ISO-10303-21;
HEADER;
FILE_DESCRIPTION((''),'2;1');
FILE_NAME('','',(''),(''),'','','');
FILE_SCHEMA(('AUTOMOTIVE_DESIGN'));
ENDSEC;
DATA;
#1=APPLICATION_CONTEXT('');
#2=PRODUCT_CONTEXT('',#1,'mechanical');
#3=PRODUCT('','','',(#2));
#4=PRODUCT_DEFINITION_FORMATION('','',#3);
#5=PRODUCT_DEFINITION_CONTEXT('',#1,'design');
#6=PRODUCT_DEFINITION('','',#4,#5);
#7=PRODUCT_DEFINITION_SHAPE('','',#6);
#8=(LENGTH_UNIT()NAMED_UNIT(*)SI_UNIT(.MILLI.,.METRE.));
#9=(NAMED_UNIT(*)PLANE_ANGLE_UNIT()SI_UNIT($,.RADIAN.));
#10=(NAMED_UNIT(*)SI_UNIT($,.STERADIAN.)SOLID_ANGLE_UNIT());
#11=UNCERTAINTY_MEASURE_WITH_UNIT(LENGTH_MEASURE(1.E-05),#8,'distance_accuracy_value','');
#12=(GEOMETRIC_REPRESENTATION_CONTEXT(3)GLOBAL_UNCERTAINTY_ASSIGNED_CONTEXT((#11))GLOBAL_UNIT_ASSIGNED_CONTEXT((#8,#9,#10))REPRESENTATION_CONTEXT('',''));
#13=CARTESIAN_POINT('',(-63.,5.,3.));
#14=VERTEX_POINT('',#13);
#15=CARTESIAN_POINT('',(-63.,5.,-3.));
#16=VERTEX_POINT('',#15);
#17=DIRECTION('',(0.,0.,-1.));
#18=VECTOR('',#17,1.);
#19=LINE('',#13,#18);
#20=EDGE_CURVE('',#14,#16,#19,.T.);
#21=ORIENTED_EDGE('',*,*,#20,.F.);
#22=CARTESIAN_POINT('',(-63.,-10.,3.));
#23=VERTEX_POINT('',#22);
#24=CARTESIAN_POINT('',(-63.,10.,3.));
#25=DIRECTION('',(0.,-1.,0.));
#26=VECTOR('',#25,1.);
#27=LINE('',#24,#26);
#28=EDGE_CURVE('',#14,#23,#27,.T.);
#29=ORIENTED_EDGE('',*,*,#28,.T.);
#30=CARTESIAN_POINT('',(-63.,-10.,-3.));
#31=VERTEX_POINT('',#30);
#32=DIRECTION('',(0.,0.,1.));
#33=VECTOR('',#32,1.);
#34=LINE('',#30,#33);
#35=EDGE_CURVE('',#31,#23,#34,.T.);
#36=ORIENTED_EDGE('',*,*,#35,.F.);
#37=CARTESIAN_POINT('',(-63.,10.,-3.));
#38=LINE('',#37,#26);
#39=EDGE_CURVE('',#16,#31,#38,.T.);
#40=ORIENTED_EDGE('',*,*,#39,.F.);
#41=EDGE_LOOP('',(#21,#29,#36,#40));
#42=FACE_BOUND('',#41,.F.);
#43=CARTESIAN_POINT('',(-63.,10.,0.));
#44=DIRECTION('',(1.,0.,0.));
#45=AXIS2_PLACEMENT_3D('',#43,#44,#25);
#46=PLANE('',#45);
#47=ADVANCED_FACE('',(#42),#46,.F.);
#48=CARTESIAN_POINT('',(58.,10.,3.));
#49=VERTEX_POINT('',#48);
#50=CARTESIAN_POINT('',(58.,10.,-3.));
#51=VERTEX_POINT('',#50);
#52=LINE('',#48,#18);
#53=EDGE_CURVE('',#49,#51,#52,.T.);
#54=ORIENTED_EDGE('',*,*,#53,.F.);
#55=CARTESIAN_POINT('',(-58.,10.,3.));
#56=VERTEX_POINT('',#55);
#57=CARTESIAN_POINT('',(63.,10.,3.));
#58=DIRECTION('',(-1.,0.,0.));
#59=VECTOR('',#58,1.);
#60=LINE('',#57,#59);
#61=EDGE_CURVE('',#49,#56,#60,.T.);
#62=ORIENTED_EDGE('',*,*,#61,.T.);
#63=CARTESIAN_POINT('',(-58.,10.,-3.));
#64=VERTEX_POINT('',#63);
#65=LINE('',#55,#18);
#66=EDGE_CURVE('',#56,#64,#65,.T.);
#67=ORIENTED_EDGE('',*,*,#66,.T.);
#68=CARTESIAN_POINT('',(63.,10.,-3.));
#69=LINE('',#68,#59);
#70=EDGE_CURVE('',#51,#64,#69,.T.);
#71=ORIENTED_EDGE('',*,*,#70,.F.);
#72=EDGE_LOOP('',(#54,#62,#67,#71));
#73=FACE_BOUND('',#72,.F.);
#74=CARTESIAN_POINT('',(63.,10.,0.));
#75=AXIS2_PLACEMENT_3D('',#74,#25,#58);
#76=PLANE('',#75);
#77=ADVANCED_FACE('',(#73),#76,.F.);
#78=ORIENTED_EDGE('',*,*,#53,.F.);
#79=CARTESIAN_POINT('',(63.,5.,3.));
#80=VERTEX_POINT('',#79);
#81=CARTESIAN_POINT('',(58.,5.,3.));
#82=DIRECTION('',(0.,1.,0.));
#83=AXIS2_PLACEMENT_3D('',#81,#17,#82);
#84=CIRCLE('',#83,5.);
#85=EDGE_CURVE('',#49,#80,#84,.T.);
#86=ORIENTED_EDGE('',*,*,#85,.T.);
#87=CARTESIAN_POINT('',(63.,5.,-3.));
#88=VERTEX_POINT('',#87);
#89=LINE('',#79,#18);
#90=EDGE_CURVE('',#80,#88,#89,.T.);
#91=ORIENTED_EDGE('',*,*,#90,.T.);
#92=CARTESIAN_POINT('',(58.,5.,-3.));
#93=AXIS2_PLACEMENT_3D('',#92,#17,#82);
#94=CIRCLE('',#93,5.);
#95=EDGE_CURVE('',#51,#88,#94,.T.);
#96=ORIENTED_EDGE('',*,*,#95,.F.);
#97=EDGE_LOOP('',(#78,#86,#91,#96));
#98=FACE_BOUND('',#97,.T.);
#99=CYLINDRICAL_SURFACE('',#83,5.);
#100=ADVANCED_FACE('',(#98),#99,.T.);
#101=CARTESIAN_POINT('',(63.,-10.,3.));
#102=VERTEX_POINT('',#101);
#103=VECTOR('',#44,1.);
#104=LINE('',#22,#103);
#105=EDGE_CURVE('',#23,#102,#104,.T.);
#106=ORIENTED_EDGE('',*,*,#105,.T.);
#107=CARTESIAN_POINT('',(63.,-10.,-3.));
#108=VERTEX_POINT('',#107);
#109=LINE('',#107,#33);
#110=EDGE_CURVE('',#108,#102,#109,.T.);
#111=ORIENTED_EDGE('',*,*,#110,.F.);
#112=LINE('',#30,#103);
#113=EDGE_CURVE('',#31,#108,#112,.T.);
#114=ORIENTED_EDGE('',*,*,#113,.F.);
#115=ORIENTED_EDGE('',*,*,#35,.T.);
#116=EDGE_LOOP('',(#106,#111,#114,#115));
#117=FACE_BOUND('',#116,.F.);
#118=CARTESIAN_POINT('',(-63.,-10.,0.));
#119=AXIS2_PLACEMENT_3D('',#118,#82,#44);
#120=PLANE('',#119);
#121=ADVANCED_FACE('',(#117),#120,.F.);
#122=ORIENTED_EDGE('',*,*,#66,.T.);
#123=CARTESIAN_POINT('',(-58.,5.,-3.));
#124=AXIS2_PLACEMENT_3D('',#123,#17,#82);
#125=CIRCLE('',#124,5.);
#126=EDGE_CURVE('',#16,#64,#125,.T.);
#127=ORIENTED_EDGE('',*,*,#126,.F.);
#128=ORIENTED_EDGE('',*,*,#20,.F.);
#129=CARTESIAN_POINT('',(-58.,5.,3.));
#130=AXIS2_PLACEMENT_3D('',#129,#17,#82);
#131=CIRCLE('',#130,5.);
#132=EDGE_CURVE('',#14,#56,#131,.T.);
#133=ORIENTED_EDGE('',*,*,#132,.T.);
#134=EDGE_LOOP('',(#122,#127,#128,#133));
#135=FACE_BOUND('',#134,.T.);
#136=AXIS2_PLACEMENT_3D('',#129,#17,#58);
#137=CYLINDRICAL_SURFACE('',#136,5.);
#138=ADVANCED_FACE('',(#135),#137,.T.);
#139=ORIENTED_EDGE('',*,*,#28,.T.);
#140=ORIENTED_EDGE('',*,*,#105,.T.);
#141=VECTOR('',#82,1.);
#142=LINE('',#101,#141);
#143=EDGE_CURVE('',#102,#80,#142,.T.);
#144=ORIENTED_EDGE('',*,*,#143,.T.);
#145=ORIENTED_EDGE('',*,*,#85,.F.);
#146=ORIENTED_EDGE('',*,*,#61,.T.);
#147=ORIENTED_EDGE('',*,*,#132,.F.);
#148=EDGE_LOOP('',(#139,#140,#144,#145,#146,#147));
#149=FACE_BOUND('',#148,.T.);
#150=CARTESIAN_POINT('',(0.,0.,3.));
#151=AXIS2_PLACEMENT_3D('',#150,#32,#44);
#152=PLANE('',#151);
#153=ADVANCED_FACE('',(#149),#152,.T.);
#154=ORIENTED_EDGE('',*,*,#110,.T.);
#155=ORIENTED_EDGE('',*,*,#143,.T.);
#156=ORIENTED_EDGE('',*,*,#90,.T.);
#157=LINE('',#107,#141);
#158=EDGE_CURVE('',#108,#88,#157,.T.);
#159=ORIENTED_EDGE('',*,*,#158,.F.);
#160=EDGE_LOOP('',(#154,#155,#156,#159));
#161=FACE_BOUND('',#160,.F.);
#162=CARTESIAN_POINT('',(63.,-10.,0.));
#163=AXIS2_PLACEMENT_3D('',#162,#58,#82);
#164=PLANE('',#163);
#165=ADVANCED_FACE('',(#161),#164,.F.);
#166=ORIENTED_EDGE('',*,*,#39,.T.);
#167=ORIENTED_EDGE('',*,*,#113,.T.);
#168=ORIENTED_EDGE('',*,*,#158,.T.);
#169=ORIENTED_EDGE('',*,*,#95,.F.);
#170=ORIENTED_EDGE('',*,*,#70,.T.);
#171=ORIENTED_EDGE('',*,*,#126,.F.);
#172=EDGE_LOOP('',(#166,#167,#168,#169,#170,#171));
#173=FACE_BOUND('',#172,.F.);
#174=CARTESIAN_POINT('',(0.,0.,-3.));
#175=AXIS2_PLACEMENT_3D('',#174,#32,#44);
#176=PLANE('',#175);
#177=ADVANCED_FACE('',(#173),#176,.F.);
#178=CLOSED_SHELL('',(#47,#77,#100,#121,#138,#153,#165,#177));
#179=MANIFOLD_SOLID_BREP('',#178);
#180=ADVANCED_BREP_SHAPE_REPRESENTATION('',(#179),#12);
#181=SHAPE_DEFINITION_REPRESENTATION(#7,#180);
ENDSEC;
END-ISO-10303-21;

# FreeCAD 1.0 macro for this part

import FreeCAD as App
import Part
import Sketcher
Q = App.Units.Quantity


def edges_at(feature, points):
    """Names of the edges that pass closest to the given points."""
    edges = feature.Shape.Edges
    near = lambda p: min(range(len(edges)), key=lambda i: edges[i].distToShape(Part.Vertex(*p))[0])
    return sorted({f"Edge{near(p) + 1}" for p in points})

doc = App.newDocument("Part")
body = doc.addObject("PartDesign::Body", "Body")

# Sketch on XY plane
sketch1 = body.newObject("Sketcher::SketchObject", "Sketch")
sketch1.AttachmentSupport = (doc.getObject("XY_Plane"), [""])
sketch1.MapMode = "FlatFace"
sketch1.addGeometry(Part.LineSegment(App.Vector(-63, 10, 0), App.Vector(-63, -10, 0)), False)
sketch1.addGeometry(Part.LineSegment(App.Vector(-63, -10, 0), App.Vector(63, -10, 0)), False)
sketch1.addGeometry(Part.LineSegment(App.Vector(63, -10, 0), App.Vector(63, 10, 0)), False)
sketch1.addGeometry(Part.LineSegment(App.Vector(63, 10, 0), App.Vector(-63, 10, 0)), False)
sketch1.addConstraint(Sketcher.Constraint("Coincident", 0, 2, 1, 1))
sketch1.addConstraint(Sketcher.Constraint("Coincident", 1, 2, 2, 1))
sketch1.addConstraint(Sketcher.Constraint("Coincident", 2, 2, 3, 1))
sketch1.addConstraint(Sketcher.Constraint("Coincident", 3, 2, 0, 1))
sketch1.addConstraint(Sketcher.Constraint("Vertical", 0))
sketch1.addConstraint(Sketcher.Constraint("Horizontal", 1))
sketch1.addConstraint(Sketcher.Constraint("Vertical", 2))
sketch1.addConstraint(Sketcher.Constraint("Horizontal", 3))
sketch1.addConstraint(Sketcher.Constraint("Symmetric", 0, 2, 2, 2, -1, 1))
sketch1.addConstraint(Sketcher.Constraint("DistanceX", 1, 1, 1, 2, Q("126 mm")))
sketch1.addConstraint(Sketcher.Constraint("DistanceY", 0, 2, 0, 1, Q("20 mm")))
pad1 = body.newObject("PartDesign::Pad", "Pad")
pad1.Profile = sketch1
pad1.Length = 6
pad1.Midplane = True
doc.recompute()

fillet = body.newObject("PartDesign::Fillet", "Fillet")
fillet.Base = (pad1, edges_at(pad1, [(-63, 10, 0), (63, 10, 0)]))
fillet.Radius = 5

doc.recompute()
